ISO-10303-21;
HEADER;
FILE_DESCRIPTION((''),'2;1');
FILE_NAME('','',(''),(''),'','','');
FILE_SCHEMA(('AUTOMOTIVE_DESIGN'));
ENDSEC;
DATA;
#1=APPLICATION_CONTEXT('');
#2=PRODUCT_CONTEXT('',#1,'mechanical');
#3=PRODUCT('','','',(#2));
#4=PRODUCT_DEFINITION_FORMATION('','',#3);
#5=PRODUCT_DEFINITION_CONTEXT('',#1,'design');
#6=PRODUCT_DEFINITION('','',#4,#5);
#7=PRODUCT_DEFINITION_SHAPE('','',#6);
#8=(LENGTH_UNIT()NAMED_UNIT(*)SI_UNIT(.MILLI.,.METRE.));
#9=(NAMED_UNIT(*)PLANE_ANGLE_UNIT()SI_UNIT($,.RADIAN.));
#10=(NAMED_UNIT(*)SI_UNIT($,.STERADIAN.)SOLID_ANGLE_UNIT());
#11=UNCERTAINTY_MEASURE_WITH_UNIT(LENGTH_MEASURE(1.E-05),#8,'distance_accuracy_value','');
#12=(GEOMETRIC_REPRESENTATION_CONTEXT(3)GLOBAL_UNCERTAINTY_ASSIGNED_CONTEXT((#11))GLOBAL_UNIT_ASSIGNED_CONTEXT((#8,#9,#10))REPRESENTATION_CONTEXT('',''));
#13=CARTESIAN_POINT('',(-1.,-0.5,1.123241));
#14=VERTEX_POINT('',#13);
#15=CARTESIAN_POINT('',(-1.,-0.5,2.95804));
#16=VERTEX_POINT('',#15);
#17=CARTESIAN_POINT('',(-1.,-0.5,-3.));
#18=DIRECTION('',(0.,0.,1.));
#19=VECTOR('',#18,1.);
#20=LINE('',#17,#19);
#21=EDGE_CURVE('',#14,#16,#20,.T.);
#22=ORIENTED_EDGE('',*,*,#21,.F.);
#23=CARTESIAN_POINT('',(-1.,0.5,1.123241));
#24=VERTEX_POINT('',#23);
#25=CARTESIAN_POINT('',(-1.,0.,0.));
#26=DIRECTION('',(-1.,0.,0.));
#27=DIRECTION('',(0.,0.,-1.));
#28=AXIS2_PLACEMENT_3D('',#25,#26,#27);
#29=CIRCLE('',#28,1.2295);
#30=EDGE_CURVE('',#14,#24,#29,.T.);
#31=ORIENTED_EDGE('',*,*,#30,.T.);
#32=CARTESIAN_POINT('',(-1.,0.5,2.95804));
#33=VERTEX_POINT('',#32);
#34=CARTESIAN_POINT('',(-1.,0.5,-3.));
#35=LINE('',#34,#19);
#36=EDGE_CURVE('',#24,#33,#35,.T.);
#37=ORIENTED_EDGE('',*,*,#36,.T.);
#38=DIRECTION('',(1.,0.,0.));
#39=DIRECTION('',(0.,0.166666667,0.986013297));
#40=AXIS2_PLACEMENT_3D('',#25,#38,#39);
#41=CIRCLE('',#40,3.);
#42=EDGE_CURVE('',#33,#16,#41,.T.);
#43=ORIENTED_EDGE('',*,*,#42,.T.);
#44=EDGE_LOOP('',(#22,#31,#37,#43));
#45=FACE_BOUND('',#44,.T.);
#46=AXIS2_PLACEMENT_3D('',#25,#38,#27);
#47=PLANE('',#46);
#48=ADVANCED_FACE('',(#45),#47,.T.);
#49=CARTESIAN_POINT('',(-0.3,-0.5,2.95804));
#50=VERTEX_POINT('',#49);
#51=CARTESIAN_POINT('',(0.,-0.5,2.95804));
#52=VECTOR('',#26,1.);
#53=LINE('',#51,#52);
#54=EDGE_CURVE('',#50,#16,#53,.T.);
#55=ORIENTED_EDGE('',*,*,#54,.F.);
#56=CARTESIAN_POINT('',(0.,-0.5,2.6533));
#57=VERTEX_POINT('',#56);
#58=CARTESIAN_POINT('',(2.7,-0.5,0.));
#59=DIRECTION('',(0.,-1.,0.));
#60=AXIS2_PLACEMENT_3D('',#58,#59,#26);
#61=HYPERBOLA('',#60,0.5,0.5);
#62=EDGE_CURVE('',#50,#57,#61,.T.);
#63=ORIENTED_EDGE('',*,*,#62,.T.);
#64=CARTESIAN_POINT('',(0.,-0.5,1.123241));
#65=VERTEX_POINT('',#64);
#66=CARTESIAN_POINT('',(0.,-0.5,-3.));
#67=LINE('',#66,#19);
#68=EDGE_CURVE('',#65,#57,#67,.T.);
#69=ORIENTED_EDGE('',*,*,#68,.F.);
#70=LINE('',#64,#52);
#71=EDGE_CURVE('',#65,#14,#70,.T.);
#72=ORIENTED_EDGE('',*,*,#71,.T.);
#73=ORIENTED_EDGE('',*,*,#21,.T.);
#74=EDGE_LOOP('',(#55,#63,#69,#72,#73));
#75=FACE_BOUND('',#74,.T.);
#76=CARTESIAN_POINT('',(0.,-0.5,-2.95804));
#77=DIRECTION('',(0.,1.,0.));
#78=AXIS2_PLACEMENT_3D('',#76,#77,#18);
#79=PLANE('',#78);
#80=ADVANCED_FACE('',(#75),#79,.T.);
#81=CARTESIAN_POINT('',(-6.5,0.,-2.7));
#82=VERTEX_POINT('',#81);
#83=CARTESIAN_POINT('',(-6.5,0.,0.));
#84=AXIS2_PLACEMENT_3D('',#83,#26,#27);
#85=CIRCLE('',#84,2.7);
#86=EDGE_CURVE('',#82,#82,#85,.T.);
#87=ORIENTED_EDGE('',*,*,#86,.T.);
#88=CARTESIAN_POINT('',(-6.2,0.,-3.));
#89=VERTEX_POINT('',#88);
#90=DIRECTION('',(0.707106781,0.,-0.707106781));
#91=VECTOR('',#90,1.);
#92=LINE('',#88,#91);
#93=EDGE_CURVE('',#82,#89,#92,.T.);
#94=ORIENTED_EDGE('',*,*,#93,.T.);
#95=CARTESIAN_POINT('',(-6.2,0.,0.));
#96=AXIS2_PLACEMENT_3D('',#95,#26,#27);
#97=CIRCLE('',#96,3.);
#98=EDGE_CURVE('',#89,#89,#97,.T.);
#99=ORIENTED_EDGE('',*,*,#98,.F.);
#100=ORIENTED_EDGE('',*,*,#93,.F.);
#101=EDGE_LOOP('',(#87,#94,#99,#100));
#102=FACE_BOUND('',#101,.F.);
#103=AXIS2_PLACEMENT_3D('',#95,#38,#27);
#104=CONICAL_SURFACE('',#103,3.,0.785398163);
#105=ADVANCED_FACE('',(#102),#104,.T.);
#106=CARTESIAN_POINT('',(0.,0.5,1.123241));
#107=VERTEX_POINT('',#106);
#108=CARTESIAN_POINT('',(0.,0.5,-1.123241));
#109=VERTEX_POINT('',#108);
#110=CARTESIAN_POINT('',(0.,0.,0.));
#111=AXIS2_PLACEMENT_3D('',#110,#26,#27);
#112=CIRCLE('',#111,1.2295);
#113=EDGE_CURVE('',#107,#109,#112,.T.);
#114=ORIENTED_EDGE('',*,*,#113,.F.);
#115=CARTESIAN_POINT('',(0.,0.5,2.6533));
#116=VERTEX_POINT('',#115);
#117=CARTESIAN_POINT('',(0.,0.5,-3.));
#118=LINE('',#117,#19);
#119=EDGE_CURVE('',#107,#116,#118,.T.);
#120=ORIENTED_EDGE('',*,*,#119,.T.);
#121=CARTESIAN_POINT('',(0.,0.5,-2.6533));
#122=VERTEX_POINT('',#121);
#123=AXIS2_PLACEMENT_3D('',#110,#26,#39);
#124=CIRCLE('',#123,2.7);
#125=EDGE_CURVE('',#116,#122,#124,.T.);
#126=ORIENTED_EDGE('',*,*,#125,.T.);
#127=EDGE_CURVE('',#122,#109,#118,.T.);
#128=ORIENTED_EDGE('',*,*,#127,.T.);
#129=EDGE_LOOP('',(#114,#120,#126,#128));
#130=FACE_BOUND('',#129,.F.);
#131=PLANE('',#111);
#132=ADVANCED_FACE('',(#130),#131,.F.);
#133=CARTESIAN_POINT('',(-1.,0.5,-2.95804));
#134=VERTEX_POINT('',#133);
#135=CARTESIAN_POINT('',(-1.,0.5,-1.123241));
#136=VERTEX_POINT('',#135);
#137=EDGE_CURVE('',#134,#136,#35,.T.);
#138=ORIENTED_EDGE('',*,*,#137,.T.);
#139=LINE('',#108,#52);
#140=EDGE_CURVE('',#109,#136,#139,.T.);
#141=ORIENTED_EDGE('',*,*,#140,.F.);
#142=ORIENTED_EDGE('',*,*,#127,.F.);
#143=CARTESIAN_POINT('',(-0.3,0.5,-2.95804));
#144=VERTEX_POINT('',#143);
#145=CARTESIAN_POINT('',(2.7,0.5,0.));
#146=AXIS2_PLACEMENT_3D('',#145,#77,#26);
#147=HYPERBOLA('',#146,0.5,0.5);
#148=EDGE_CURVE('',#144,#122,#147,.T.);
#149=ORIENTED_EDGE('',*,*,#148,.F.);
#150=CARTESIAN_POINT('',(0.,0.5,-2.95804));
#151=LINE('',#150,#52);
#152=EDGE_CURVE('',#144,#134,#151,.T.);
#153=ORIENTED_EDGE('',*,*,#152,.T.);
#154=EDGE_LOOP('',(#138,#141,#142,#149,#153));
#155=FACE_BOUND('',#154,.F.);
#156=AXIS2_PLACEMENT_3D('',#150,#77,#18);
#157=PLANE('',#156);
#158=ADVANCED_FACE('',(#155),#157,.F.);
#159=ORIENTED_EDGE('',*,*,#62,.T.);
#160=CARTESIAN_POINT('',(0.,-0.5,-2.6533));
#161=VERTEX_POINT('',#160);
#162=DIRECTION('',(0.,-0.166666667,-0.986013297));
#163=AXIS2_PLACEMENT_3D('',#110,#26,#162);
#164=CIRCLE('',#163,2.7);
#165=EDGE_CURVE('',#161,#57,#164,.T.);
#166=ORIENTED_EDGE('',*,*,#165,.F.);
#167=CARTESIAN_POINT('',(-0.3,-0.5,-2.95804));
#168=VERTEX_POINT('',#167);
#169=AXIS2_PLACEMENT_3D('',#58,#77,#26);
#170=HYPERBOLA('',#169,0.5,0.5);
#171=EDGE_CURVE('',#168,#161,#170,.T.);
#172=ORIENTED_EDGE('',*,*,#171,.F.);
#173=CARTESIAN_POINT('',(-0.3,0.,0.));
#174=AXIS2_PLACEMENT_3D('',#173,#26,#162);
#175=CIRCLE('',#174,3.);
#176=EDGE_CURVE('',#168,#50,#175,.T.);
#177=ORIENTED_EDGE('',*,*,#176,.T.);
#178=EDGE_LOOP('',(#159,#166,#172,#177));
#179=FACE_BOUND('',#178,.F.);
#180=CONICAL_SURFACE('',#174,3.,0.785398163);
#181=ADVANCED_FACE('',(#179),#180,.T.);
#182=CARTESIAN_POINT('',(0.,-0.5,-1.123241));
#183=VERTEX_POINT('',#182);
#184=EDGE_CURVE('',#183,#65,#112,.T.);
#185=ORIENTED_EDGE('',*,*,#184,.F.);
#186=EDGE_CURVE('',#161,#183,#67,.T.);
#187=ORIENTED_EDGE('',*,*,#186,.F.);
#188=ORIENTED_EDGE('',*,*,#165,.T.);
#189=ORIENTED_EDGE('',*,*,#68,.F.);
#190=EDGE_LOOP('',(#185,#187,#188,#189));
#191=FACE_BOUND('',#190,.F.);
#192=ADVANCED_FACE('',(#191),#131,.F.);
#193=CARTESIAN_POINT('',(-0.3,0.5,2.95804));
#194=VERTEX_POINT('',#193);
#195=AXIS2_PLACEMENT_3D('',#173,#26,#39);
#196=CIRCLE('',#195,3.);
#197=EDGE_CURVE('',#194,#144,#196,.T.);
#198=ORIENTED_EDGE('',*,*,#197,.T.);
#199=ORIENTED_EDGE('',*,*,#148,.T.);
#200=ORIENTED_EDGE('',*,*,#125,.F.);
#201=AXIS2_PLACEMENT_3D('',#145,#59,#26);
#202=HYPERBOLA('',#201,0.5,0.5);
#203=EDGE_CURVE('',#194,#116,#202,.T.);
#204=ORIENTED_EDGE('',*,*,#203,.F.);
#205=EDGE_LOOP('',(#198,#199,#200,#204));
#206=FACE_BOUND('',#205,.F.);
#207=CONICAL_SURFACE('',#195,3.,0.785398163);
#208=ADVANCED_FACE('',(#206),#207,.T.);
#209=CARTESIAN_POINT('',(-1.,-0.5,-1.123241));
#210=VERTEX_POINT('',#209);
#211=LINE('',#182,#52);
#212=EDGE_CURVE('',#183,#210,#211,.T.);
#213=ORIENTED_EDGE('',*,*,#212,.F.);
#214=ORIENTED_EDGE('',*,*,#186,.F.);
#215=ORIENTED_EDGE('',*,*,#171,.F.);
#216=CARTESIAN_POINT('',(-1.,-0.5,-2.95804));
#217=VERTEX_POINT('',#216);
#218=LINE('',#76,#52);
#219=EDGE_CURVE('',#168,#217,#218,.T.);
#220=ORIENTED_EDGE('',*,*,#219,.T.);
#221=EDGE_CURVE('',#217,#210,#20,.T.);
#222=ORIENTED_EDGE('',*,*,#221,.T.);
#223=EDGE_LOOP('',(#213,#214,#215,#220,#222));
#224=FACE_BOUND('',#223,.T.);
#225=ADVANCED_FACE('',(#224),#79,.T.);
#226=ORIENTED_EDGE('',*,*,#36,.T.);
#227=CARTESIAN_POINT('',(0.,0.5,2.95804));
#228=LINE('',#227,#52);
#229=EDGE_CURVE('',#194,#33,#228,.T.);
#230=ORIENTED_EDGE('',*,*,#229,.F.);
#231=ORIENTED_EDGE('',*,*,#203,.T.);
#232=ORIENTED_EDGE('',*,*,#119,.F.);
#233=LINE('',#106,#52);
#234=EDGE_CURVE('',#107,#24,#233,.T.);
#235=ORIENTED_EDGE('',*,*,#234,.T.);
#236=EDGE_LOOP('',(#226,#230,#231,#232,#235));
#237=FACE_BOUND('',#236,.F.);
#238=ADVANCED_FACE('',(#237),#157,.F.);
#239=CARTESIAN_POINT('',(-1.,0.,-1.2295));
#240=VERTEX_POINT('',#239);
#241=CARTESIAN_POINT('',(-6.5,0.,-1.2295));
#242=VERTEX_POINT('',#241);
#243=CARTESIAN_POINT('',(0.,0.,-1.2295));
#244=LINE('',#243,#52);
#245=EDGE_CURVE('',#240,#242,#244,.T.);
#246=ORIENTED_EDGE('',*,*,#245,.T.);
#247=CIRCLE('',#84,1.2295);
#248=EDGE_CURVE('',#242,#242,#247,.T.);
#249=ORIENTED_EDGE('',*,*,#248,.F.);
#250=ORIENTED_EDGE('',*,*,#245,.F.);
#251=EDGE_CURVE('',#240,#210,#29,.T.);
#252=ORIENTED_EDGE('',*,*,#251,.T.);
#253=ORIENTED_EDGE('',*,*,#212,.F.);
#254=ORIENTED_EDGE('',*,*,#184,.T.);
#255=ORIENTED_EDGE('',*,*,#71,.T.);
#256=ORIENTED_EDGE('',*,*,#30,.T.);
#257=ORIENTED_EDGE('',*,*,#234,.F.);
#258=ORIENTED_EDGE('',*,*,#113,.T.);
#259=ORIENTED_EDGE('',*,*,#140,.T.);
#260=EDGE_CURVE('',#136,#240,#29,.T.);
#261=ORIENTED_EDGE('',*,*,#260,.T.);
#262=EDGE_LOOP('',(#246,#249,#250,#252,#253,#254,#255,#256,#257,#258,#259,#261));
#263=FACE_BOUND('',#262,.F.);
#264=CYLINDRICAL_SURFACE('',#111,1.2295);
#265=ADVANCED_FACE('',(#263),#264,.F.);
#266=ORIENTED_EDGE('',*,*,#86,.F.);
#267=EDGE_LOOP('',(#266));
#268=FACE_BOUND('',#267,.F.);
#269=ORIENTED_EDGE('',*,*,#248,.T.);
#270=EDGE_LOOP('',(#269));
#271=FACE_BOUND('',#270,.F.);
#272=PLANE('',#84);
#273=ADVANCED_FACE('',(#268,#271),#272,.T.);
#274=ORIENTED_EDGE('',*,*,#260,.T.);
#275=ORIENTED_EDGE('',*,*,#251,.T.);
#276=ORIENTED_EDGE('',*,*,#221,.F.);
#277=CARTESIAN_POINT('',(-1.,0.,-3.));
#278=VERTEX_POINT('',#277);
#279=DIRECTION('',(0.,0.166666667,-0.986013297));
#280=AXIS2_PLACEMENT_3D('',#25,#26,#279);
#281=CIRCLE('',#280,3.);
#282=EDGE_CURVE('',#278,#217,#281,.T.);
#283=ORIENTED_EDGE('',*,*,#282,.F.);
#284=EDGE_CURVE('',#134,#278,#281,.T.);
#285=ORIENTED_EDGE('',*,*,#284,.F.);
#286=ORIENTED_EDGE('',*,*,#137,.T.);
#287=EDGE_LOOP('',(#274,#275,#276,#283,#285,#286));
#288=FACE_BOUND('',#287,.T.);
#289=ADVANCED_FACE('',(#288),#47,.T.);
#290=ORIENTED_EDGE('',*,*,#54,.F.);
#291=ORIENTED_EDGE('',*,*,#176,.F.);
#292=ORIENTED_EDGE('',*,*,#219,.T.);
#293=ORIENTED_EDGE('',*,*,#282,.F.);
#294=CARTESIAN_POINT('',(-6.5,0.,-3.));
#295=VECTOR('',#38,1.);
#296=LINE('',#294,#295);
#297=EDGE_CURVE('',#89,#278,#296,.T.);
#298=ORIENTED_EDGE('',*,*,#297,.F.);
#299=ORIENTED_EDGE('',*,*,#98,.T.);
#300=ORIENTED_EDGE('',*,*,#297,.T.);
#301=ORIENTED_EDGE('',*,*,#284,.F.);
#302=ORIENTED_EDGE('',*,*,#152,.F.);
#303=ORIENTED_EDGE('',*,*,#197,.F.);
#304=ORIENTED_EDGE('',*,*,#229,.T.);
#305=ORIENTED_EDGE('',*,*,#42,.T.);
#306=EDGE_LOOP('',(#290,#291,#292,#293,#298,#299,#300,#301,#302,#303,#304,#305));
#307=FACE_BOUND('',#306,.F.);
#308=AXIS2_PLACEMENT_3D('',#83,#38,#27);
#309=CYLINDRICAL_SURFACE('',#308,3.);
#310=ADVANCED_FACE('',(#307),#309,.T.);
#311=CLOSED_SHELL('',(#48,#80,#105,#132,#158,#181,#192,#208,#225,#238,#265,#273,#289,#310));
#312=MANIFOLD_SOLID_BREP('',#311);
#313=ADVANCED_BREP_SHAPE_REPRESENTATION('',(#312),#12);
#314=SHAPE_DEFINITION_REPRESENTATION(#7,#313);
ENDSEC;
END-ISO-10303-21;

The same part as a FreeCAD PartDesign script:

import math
import FreeCAD as App
import Part
import Sketcher
from FreeCAD import Vector


def edges_at(feature, points):
    """Names of the edges that pass closest to the given points."""
    edges = feature.Shape.Edges
    near = lambda p: min(range(len(edges)), key=lambda i: edges[i].distToShape(Part.Vertex(*p))[0])
    return sorted({f"Edge{near(p) + 1}" for p in points})


def add_polygon(sketch, points):
    """Adds a closed chain of lines whose ends are joined by coincident constraints."""
    first, n = sketch.GeometryCount, len(points)
    for a, b in zip(points, points[1:] + points[:1]):
        sketch.addGeometry(Part.LineSegment(App.Vector(*a, 0), App.Vector(*b, 0)), False)
    for i in range(n):
        sketch.addConstraint(Sketcher.Constraint("Coincident", first + i, 2, first + (i + 1) % n, 1))

doc = App.newDocument("Part")
body = doc.addObject("PartDesign::Body", "Body")

sketch1 = doc.addObject("Sketcher::SketchObject", "Sketch")
body.addObject(sketch1)
sketch1.AttachmentSupport = (doc.XZ_Plane, [""])
sketch1.MapMode = "FlatFace"
add_polygon(sketch1, [(-6.5, 0), (0, 0), (0, -3), (-6.5, -3)])
sketch1.addConstraint(Sketcher.Constraint("Horizontal", 0))
sketch1.addConstraint(Sketcher.Constraint("Vertical", 1))
sketch1.addConstraint(Sketcher.Constraint("Horizontal", 2))
sketch1.addConstraint(Sketcher.Constraint("Vertical", 3))
sketch1.addConstraint(Sketcher.Constraint("Coincident", 0, 2, -1, 1))
sketch1.addConstraint(Sketcher.Constraint("DistanceY", 1, 2, 1, 1, 3.0))
sketch1.addConstraint(Sketcher.Constraint("DistanceX", 0, 1, 0, 2, 6.5))
revolution = doc.addObject("PartDesign::Revolution", "Revolution")
body.addObject(revolution)
revolution.Profile = sketch1
revolution.ReferenceAxis = (sketch1, ["H_Axis"])
revolution.Angle = 360

sketch2 = doc.addObject("Sketcher::SketchObject", "Sketch001")
body.addObject(sketch2)
sketch2.AttachmentSupport = (doc.YZ_Plane, [""])
sketch2.MapMode = "FlatFace"
sketch2.addGeometry(Part.Circle(Vector(0, 0, 0), Vector(0, 0, 1), 1.2), False)
sketch2.addConstraint(Sketcher.Constraint("Coincident", 0, 3, -1, 1))
sketch2.addConstraint(Sketcher.Constraint("Diameter", 0, 2.459))
doc.recompute()
hole = doc.addObject("PartDesign::Hole", "Hole")
body.addObject(hole)
hole.Profile = sketch2
hole.ThreadType = "None"
hole.Diameter = 2.459
hole.DepthType = "ThroughAll"

sketch3 = doc.addObject("Sketcher::SketchObject", "Sketch002")
body.addObject(sketch3)
sketch3.AttachmentSupport = (doc.YZ_Plane, [""])
sketch3.MapMode = "FlatFace"
sketch3.addGeometry(Part.ArcOfCircle(Part.Circle(Vector(0, 0, 0), Vector(0, 0, 1), 3), math.radians(80.41), math.radians(99.59)), False)
sketch3.addGeometry(Part.LineSegment(Vector(-0.5, 3, 0), Vector(-0.5, -3, 0)), False)
sketch3.addGeometry(Part.ArcOfCircle(Part.Circle(Vector(0, 0, 0), Vector(0, 0, 1), 3), math.radians(-99.59), math.radians(-80.41)), False)
sketch3.addGeometry(Part.LineSegment(Vector(0.5, -3, 0), Vector(0.5, 3, 0)), False)
sketch3.addConstraint(Sketcher.Constraint("Coincident", 0, 2, 1, 1))
sketch3.addConstraint(Sketcher.Constraint("Coincident", 1, 2, 2, 1))
sketch3.addConstraint(Sketcher.Constraint("Coincident", 2, 2, 3, 1))
sketch3.addConstraint(Sketcher.Constraint("Coincident", 3, 2, 0, 1))
sketch3.addConstraint(Sketcher.Constraint("Vertical", 1))
sketch3.addConstraint(Sketcher.Constraint("Vertical", 3))
sketch3.addConstraint(Sketcher.Constraint("Coincident", 0, 3, -1, 1))
sketch3.addConstraint(Sketcher.Constraint("Coincident", 2, 3, -1, 1))
sketch3.addConstraint(Sketcher.Constraint("Equal", 0, 2))
sketch3.addConstraint(Sketcher.Constraint("Horizontal", 1, 2, 2, 2))
sketch3.addConstraint(Sketcher.Constraint("Radius", 0, 3.0))
sketch3.addConstraint(Sketcher.Constraint("DistanceX", 0, 2, -1, 1, 0.5))
pocket1 = doc.addObject("PartDesign::Pocket", "Pocket")
body.addObject(pocket1)
pocket1.Profile = sketch3
pocket1.Length = 1
doc.recompute()

chamfer = doc.addObject("PartDesign::Chamfer", "Chamfer")
body.addObject(chamfer)
chamfer.Base = (pocket1, edges_at(pocket1, [(-6.5, 0, 3), (0, 3, 0), (0, -3, 0)]))
chamfer.Size = 0.3

doc.recompute()
